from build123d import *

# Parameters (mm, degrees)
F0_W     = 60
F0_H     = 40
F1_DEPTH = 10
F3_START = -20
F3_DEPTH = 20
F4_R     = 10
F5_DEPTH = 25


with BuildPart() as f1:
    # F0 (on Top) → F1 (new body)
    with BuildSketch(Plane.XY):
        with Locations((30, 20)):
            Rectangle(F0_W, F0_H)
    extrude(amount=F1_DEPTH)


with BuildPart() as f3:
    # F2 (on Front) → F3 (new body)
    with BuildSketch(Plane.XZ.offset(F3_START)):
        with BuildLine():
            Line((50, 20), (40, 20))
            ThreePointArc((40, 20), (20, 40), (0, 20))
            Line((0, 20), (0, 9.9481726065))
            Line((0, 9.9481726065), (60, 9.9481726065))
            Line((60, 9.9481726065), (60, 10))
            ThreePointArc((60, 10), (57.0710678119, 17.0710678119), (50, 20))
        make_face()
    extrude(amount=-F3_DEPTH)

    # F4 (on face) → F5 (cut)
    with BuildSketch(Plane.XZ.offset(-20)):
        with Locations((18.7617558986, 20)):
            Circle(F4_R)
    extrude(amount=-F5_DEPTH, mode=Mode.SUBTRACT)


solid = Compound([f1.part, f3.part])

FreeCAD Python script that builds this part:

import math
import FreeCAD as App
import Part
import Sketcher

doc = App.newDocument("Part")
body = doc.addObject("PartDesign::Body", "Body")

# Sketch on XY plane
sketch1 = body.newObject("Sketcher::SketchObject", "Sketch")
sketch1.AttachmentSupport = (doc.getObject("XY_Plane"), [""])
sketch1.MapMode = "FlatFace"
sketch1.addGeometry(Part.LineSegment(App.Vector(0, 40, 0), App.Vector(0, 0, 0)), False)
sketch1.addGeometry(Part.LineSegment(App.Vector(0, 0, 0), App.Vector(60, 0, 0)), False)
sketch1.addGeometry(Part.LineSegment(App.Vector(60, 0, 0), App.Vector(60, 40, 0)), False)
sketch1.addGeometry(Part.LineSegment(App.Vector(60, 40, 0), App.Vector(0, 40, 0)), False)
sketch1.addConstraint(Sketcher.Constraint("Coincident", 0, 2, 1, 1))
sketch1.addConstraint(Sketcher.Constraint("Coincident", 1, 2, 2, 1))
sketch1.addConstraint(Sketcher.Constraint("Coincident", 2, 2, 3, 1))
sketch1.addConstraint(Sketcher.Constraint("Coincident", 3, 2, 0, 1))
sketch1.addConstraint(Sketcher.Constraint("Vertical", 0))
sketch1.addConstraint(Sketcher.Constraint("Horizontal", 1))
sketch1.addConstraint(Sketcher.Constraint("Vertical", 2))
sketch1.addConstraint(Sketcher.Constraint("Horizontal", 3))
sketch1.addConstraint(Sketcher.Constraint("Coincident", 0, 2, -1, 1))
sketch1.addConstraint(Sketcher.Constraint("DistanceX", 1, 1, 1, 2, 60.0))
sketch1.addConstraint(Sketcher.Constraint("DistanceY", 0, 2, 0, 1, 40.0))
pad1 = body.newObject("PartDesign::Pad", "Pad")
pad1.Profile = sketch1
pad1.Length = 10
body2 = doc.addObject("PartDesign::Body", "Body001")

# Sketch on XZ plane
sketch2 = body2.newObject("Sketcher::SketchObject", "Sketch001")
sketch2.AttachmentSupport = (doc.getObject("XZ_Plane001"), [""])
sketch2.MapMode = "FlatFace"
sketch2.AttachmentOffset = App.Placement(App.Vector(0, 0, -20), App.Rotation())
sketch2.addGeometry(Part.LineSegment(App.Vector(50, 20, 0), App.Vector(40, 20, 0)), False)
sketch2.addGeometry(Part.ArcOfCircle(Part.Circle(App.Vector(20, 20, 0), App.Vector(0, 0, 1), 20), math.radians(0), math.radians(180)), False)
sketch2.addGeometry(Part.LineSegment(App.Vector(0, 20, 0), App.Vector(0, 9.95, 0)), False)
sketch2.addGeometry(Part.LineSegment(App.Vector(0, 9.95, 0), App.Vector(60, 9.95, 0)), False)
sketch2.addGeometry(Part.LineSegment(App.Vector(60, 9.95, 0), App.Vector(60, 10, 0)), False)
sketch2.addGeometry(Part.ArcOfCircle(Part.Circle(App.Vector(50, 10, 0), App.Vector(0, 0, 1), 10), math.radians(0), math.radians(90)), False)
sketch2.addConstraint(Sketcher.Constraint("Coincident", 0, 2, 1, 1))
sketch2.addConstraint(Sketcher.Constraint("Tangent", 1, 2, 2, 1))
sketch2.addConstraint(Sketcher.Constraint("Coincident", 2, 2, 3, 1))
sketch2.addConstraint(Sketcher.Constraint("Coincident", 3, 2, 4, 1))
sketch2.addConstraint(Sketcher.Constraint("Tangent", 4, 2, 5, 1))
sketch2.addConstraint(Sketcher.Constraint("Tangent", 5, 2, 0, 1))
sketch2.addConstraint(Sketcher.Constraint("Horizontal", 0))
sketch2.addConstraint(Sketcher.Constraint("Vertical", 2))
sketch2.addConstraint(Sketcher.Constraint("Horizontal", 3))
sketch2.addConstraint(Sketcher.Constraint("Vertical", 4))
sketch2.addConstraint(Sketcher.Constraint("PointOnObject", 1, 2, -2))
sketch2.addConstraint(Sketcher.Constraint("Horizontal", 1, 3, 0, 2))
sketch2.addConstraint(Sketcher.Constraint("Radius", 1, 20.0))
sketch2.addConstraint(Sketcher.Constraint("Radius", 5, 10.0))
sketch2.addConstraint(Sketcher.Constraint("DistanceX", 0, 2, 0, 1, 10.0))
sketch2.addConstraint(Sketcher.Constraint("DistanceY", -1, 1, 1, 3, 20.0))
sketch2.addConstraint(Sketcher.Constraint("DistanceY", 2, 2, 2, 1, 10.051827))
pad2 = body2.newObject("PartDesign::Pad", "Pad001")
pad2.Profile = sketch2
pad2.Length = 20
pad2.Reversed = True

# Sketch on XZ plane
sketch3 = body2.newObject("Sketcher::SketchObject", "Sketch002")
sketch3.AttachmentSupport = (doc.getObject("XZ_Plane001"), [""])
sketch3.MapMode = "FlatFace"
sketch3.AttachmentOffset = App.Placement(App.Vector(0, 0, -20), App.Rotation())
sketch3.addGeometry(Part.Circle(App.Vector(19, 20, 0), App.Vector(0, 0, 1), 10), False)
sketch3.addConstraint(Sketcher.Constraint("Diameter", 0, 20.0))
sketch3.addConstraint(Sketcher.Constraint("DistanceY", -1, 1, 0, 3, 20.0))
sketch3.addConstraint(Sketcher.Constraint("DistanceX", -1, 1, 0, 3, 18.761756))
pocket1 = body2.newObject("PartDesign::Pocket", "Pocket")
pocket1.Profile = sketch3
pocket1.Length = 25

doc.recompute()
